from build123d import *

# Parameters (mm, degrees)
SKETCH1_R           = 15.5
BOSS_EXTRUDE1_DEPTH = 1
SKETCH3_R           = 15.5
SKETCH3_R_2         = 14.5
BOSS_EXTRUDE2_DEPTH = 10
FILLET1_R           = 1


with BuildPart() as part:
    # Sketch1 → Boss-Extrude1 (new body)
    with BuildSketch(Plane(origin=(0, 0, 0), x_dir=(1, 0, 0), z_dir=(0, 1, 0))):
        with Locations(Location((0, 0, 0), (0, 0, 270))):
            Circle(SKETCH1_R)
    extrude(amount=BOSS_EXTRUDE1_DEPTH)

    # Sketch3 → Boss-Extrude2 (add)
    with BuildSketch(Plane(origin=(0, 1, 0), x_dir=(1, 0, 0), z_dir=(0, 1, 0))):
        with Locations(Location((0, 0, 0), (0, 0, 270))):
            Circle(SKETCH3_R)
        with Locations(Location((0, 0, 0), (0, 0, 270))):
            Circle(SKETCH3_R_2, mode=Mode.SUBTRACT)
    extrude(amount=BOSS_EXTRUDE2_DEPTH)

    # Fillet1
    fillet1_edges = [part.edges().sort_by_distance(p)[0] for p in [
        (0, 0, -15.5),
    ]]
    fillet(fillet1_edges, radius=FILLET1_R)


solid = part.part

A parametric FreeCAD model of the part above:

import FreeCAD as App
import Part
import Sketcher

V = App.Vector


def edges_at(feature, points):
    """Names of the edges that pass closest to the given points."""
    edges = feature.Shape.Edges
    near = lambda p: min(range(len(edges)), key=lambda i: edges[i].distToShape(Part.Vertex(*p))[0])
    return sorted({f"Edge{near(p) + 1}" for p in points})

doc = App.newDocument("Part")
body = doc.addObject("PartDesign::Body", "Body")

sketch1 = body.newObject("Sketcher::SketchObject", "Sketch")
sketch1.AttachmentSupport = (doc.getObject("XZ_Plane"), [""])
sketch1.MapMode = "FlatFace"
sketch1.addGeometry(Part.Circle(V(0, 0, 0), V(0, 0, 1), 16), False)
sketch1.addConstraint(Sketcher.Constraint("Coincident", 0, 3, -1, 1))
sketch1.addConstraint(Sketcher.Constraint("Diameter", 0, 31.0))
pad1 = body.newObject("PartDesign::Pad", "Pad")
pad1.Profile = sketch1
pad1.Length = 1
pad1.Reversed = True

sketch2 = body.newObject("Sketcher::SketchObject", "Sketch001")
sketch2.AttachmentSupport = (doc.getObject("XZ_Plane"), [""])
sketch2.MapMode = "FlatFace"
sketch2.AttachmentOffset = App.Placement(V(0, 0, -1), App.Rotation())
sketch2.addGeometry(Part.Circle(V(0, 0, 0), V(0, 0, 1), 16), False)
sketch2.addGeometry(Part.Circle(V(0, 0, 0), V(0, 0, 1), 14), False)
sketch2.addConstraint(Sketcher.Constraint("Coincident", 0, 3, -1, 1))
sketch2.addConstraint(Sketcher.Constraint("Coincident", 1, 3, -1, 1))
sketch2.addConstraint(Sketcher.Constraint("Diameter", 0, 31.0))
sketch2.addConstraint(Sketcher.Constraint("Diameter", 1, 29.0))
pad2 = body.newObject("PartDesign::Pad", "Pad001")
pad2.Profile = sketch2
pad2.Length = 10
pad2.Reversed = True
doc.recompute()

fillet = body.newObject("PartDesign::Fillet", "Fillet")
fillet.Base = (pad2, edges_at(pad2, [(0, 0, -15.5)]))
fillet.Radius = 1

doc.recompute()
